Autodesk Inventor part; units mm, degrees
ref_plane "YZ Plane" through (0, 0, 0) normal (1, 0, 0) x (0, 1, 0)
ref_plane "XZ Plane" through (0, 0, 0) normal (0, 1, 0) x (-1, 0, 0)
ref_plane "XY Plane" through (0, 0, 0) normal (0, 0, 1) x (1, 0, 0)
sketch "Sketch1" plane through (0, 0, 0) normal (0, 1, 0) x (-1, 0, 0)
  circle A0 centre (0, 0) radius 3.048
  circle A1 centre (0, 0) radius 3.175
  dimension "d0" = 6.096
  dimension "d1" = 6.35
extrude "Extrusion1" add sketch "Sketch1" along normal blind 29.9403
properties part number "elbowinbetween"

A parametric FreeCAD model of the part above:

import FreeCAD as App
import Part
import Sketcher

V = App.Vector
Q = App.Units.Quantity

doc = App.newDocument("Part")
body = doc.addObject("PartDesign::Body", "Body")

# Sketch on XZ plane
sketch1 = body.newObject("Sketcher::SketchObject", "Sketch")
sketch1.AttachmentSupport = (doc.getObject("XZ_Plane"), [""])
sketch1.MapMode = "FlatFace"
sketch1.addGeometry([
    Part.Circle(V(0, 0, 0), V(0, 0, 1), 3.175),
    Part.Circle(V(0, 0, 0), V(0, 0, 1), 3.048),
], False)
sketch1.addConstraint([
    Sketcher.Constraint("Coincident", 0, 3, -1, 1),
    Sketcher.Constraint("Coincident", 1, 3, -1, 1),
    Sketcher.Constraint("Diameter", 0, Q("0.25 in")),
    Sketcher.Constraint("Diameter", 1, Q("0.24 in")),
])
pad1 = body.newObject("PartDesign::Pad", "Pad")
pad1.Profile = sketch1
pad1.Length = 29.9403
pad1.Reversed = True

doc.recompute()
